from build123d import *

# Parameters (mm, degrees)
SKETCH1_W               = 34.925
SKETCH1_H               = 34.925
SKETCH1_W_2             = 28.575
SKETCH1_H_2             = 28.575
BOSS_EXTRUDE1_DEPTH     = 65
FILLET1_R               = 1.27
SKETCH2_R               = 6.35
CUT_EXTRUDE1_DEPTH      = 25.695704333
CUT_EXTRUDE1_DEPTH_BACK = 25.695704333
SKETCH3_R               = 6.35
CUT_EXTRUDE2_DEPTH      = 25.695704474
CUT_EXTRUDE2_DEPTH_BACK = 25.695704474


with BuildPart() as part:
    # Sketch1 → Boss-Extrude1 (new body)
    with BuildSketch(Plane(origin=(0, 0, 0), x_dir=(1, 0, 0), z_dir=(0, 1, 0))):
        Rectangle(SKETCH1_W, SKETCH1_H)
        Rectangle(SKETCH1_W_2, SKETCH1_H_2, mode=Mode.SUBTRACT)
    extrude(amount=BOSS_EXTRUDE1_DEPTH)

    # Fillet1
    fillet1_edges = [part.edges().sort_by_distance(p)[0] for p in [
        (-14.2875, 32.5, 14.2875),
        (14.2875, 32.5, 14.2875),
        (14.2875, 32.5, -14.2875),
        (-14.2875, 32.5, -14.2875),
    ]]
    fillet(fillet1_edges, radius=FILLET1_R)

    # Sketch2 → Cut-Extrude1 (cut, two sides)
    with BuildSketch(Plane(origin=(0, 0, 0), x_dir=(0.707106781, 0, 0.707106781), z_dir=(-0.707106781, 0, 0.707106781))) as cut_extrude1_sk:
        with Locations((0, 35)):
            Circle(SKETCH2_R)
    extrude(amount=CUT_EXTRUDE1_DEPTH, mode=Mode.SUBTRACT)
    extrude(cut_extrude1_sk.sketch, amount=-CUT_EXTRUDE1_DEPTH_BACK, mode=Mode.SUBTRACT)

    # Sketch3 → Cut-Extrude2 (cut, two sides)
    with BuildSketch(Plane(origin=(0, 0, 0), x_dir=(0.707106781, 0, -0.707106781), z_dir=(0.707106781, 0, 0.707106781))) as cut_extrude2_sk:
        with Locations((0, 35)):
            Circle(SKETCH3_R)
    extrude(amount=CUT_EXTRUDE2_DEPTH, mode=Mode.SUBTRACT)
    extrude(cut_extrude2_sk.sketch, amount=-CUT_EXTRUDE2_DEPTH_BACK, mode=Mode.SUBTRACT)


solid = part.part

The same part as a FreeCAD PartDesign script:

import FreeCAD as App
import Part
import Sketcher

V = App.Vector
Q = App.Units.Quantity


def edges_at(feature, points):
    """Names of the edges that pass closest to the given points."""
    edges = feature.Shape.Edges
    near = lambda p: min(range(len(edges)), key=lambda i: edges[i].distToShape(Part.Vertex(*p))[0])
    return sorted({f"Edge{near(p) + 1}" for p in points})

doc = App.newDocument("Part")
params = doc.addObject("Spreadsheet::Sheet", "Params")
for row, (alias, value) in enumerate([
    ("sketch1_width", "1.375 in"),
    ("sketch1_width2", "1.125 in"),
    ("pad1_length", "65 mm"),
    ("fillet_radius", "0.05 in"),
    ("sketch2_diameter", "0.5 in"),
    ("sketch3_diameter", "0.5 in"),
], start=1):
    params.set(f"A{row}", alias)
    params.set(f"B{row}", "=" + value)
    params.setAlias(f"B{row}", alias)

body = doc.addObject("PartDesign::Body", "Body")

# Sketch on XZ plane
sketch1 = body.newObject("Sketcher::SketchObject", "Sketch")
sketch1.AttachmentSupport = (doc.getObject("XZ_Plane"), [""])
sketch1.MapMode = "FlatFace"
sketch1.addGeometry([
    Part.LineSegment(V(-17.4625, -17.4625, 0), V(-17.4625, 17.4625, 0)),  # 0
    Part.LineSegment(V(-17.4625, 17.4625, 0), V(17.4625, 17.4625, 0)),  # 1
    Part.LineSegment(V(17.4625, 17.4625, 0), V(17.4625, -17.4625, 0)),  # 2
    Part.LineSegment(V(17.4625, -17.4625, 0), V(-17.4625, -17.4625, 0)),  # 3
    Part.LineSegment(V(14.2875, 14.2875, 0), V(-14.2875, 14.2875, 0)),  # 4
    Part.LineSegment(V(-14.2875, 14.2875, 0), V(-14.2875, -14.2875, 0)),  # 5
    Part.LineSegment(V(-14.2875, -14.2875, 0), V(14.2875, -14.2875, 0)),  # 6
    Part.LineSegment(V(14.2875, -14.2875, 0), V(14.2875, 14.2875, 0)),  # 7
], False)
sketch1.addConstraint([
    Sketcher.Constraint("Coincident", 0, 2, 1, 1),
    Sketcher.Constraint("Coincident", 1, 2, 2, 1),
    Sketcher.Constraint("Coincident", 2, 2, 3, 1),
    Sketcher.Constraint("Coincident", 3, 2, 0, 1),
    Sketcher.Constraint("Coincident", 4, 2, 5, 1),
    Sketcher.Constraint("Coincident", 5, 2, 6, 1),
    Sketcher.Constraint("Coincident", 6, 2, 7, 1),
    Sketcher.Constraint("Coincident", 7, 2, 4, 1),
    Sketcher.Constraint("Vertical", 0),
    Sketcher.Constraint("Horizontal", 1),
    Sketcher.Constraint("Vertical", 2),
    Sketcher.Constraint("Horizontal", 3),
    Sketcher.Constraint("Horizontal", 4),
    Sketcher.Constraint("Vertical", 5),
    Sketcher.Constraint("Horizontal", 6),
    Sketcher.Constraint("Vertical", 7),
    Sketcher.Constraint("Symmetric", 0, 2, 2, 2, -1, 1),
    Sketcher.Constraint("Symmetric", 4, 2, 6, 2, -1, 1),
    Sketcher.Constraint("Equal", 3, 0),
    Sketcher.Constraint("Equal", 6, 5),
    Sketcher.Constraint("DistanceX", 1, 1, 1, 2, Q("1.375 in")),
    Sketcher.Constraint("DistanceX", 4, 2, 4, 1, Q("1.125 in")),
])
sketch1.setExpression("Constraints[20]", "Params.sketch1_width")
sketch1.setExpression("Constraints[21]", "Params.sketch1_width2")
pad1 = body.newObject("PartDesign::Pad", "Pad")
pad1.Profile = sketch1
pad1.setExpression("Length", "Params.pad1_length")
pad1.Reversed = True
doc.recompute()

fillet = body.newObject("PartDesign::Fillet", "Fillet")
fillet.Base = (pad1, edges_at(pad1, [
    (-14.287, 32.5, 14.287),
    (14.287, 32.5, 14.287),
    (14.287, 32.5, -14.287),
    (-14.287, 32.5, -14.287),
]))
fillet.setExpression("Radius", "Params.fillet_radius")

# Sketch on an angled plane
sketch2 = body.newObject("Sketcher::SketchObject", "Sketch001")
sketch2.Placement = App.Placement(V(0, 0, 0), App.Rotation(V(0.707106781, 0, 0.707106781), V(0, 0.999999999, 0), V(-0.707106781, 0, 0.707106781), "ZXY"))
sketch2.addGeometry(Part.Circle(V(0, 35, 0), V(0, 0, 1), 6.35), False)
sketch2.addConstraint([
    Sketcher.Constraint("PointOnObject", 0, 3, -2),
    Sketcher.Constraint("Diameter", 0, Q("0.5 in")),
    Sketcher.Constraint("DistanceY", -1, 1, 0, 3, Q("35 mm")),
])
sketch2.setExpression("Constraints[1]", "Params.sketch2_diameter")
pocket1 = body.newObject("PartDesign::Pocket", "Pocket")
pocket1.Profile = sketch2
pocket1.Type = "ThroughAll"
pocket1.Midplane = True

# Sketch on an angled plane
sketch3 = body.newObject("Sketcher::SketchObject", "Sketch002")
sketch3.Placement = App.Placement(V(0, 0, 0), App.Rotation(V(0.707106781, 0, -0.707106781), V(0, 0.999999999, 0), V(0.707106781, 0, 0.707106781), "ZXY"))
sketch3.addGeometry(Part.Circle(V(0, 35, 0), V(0, 0, 1), 6.35), False)
sketch3.addConstraint([
    Sketcher.Constraint("PointOnObject", 0, 3, -2),
    Sketcher.Constraint("Diameter", 0, Q("0.5 in")),
    Sketcher.Constraint("DistanceY", -1, 1, 0, 3, Q("35 mm")),
])
sketch3.setExpression("Constraints[1]", "Params.sketch3_diameter")
pocket2 = body.newObject("PartDesign::Pocket", "Pocket001")
pocket2.Profile = sketch3
pocket2.Type = "ThroughAll"
pocket2.Midplane = True

doc.recompute()
